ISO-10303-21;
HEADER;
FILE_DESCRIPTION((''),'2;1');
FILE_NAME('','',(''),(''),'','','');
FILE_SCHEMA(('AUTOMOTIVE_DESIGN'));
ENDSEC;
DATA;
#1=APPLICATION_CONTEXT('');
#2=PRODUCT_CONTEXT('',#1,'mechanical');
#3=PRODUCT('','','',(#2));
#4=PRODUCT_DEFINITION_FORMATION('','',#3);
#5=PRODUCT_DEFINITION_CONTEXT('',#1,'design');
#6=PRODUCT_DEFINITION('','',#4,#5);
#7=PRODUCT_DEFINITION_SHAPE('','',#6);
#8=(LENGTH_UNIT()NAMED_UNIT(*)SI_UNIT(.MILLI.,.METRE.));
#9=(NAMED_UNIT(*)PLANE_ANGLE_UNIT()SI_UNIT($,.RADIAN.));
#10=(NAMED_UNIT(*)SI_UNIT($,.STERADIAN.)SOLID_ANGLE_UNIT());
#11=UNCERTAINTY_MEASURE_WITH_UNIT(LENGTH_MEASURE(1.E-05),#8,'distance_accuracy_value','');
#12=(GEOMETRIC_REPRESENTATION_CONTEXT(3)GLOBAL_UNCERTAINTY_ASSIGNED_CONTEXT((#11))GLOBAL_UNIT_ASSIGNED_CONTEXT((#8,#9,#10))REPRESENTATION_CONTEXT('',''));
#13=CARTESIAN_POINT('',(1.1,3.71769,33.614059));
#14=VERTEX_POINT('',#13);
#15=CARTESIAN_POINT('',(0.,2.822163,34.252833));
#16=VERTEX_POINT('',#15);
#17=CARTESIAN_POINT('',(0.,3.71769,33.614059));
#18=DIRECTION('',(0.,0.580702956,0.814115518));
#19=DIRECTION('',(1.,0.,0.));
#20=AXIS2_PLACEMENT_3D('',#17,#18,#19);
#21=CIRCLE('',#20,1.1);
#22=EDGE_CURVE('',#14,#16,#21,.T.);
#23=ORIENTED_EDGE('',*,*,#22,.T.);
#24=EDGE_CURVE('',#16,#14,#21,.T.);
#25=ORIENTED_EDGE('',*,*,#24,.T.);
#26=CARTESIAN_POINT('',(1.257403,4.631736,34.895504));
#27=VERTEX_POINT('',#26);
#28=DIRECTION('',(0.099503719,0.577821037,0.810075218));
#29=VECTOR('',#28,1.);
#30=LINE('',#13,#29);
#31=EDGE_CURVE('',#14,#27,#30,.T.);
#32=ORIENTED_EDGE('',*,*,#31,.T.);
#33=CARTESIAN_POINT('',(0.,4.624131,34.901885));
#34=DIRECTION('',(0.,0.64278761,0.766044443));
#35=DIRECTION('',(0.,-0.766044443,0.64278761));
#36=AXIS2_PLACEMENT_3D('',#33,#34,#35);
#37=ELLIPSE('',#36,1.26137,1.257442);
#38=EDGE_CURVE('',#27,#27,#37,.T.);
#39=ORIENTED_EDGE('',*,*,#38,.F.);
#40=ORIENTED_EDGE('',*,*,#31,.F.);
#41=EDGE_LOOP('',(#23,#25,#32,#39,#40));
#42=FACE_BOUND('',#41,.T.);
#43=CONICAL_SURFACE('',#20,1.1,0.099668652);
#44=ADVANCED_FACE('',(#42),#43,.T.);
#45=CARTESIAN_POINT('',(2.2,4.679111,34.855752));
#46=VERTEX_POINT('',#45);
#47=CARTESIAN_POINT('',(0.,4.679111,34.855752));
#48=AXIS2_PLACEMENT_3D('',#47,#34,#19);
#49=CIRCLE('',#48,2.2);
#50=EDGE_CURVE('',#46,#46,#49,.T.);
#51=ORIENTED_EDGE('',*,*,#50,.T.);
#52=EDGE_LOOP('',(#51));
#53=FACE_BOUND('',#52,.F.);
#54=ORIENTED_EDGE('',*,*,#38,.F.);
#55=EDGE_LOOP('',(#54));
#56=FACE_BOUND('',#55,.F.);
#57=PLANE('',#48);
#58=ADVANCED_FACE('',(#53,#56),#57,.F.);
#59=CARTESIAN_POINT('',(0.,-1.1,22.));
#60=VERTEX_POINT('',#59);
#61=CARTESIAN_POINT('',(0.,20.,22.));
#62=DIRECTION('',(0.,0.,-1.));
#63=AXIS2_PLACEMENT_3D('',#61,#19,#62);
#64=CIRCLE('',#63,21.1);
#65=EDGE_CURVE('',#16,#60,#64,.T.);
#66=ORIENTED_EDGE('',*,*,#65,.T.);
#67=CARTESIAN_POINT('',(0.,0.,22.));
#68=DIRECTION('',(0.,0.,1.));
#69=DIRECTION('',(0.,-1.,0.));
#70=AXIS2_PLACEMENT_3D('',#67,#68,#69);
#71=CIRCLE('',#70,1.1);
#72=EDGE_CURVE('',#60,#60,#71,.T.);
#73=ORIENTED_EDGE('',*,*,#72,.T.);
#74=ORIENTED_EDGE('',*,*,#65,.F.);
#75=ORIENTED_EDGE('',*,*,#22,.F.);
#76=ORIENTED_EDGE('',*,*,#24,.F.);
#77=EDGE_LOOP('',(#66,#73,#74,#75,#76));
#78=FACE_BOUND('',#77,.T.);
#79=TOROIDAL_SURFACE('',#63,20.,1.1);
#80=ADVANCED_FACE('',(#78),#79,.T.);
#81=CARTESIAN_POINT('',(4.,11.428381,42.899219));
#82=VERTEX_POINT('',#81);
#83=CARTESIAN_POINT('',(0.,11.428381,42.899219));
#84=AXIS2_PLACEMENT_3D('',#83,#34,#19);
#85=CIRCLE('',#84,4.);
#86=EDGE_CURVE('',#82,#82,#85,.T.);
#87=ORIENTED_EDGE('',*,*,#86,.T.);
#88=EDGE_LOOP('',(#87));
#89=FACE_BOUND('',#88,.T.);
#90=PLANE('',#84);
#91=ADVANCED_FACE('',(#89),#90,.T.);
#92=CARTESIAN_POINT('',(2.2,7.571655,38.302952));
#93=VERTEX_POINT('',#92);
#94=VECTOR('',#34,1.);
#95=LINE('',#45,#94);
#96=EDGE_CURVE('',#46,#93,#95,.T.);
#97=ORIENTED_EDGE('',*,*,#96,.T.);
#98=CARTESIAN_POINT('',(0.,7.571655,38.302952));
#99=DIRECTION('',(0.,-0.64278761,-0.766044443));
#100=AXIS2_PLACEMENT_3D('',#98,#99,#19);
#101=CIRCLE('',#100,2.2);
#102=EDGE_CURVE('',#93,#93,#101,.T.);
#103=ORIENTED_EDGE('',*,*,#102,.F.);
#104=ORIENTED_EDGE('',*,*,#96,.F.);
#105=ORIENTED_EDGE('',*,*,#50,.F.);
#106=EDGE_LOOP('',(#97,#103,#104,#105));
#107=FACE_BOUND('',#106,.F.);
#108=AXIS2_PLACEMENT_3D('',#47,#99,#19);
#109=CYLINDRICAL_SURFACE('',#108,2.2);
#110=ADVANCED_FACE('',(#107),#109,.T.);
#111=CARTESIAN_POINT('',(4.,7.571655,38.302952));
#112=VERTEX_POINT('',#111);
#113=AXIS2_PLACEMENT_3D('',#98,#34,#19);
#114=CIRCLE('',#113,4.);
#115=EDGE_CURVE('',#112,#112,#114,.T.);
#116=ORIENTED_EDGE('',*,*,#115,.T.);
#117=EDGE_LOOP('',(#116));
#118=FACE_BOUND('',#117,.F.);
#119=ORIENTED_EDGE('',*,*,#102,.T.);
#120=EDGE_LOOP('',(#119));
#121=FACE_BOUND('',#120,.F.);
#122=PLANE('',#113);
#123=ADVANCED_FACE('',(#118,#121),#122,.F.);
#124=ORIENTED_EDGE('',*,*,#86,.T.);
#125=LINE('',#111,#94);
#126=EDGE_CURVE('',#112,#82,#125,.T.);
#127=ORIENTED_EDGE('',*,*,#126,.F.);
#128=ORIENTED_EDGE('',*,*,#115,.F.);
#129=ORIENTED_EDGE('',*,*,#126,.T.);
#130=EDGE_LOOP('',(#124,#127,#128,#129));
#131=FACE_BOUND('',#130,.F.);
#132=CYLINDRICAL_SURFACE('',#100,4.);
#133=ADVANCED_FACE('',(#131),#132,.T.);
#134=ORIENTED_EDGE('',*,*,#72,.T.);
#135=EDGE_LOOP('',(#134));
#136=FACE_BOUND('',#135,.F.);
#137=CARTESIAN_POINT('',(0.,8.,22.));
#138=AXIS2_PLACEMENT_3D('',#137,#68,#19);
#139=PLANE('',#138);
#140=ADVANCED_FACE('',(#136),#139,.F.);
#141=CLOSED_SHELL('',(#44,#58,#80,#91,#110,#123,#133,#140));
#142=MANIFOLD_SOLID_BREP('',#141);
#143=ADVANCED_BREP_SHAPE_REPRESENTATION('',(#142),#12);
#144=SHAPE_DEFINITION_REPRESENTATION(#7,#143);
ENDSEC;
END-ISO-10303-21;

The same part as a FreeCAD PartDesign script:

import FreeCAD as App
import Part
import Sketcher
from FreeCAD import Vector

doc = App.newDocument("Part")
body = doc.addObject("PartDesign::Body", "Body")

sketch1 = body.newObject("Sketcher::SketchObject", "Sketch")
sketch1.AttachmentSupport = (doc.getObject("XZ_Plane"), [""])
sketch1.MapMode = "FlatFace"
sketch1.addGeometry(Part.LineSegment(Vector(0, 0, 0), Vector(1.1, 0, 0)), False)
sketch1.addGeometry(Part.LineSegment(Vector(1.1, 0, 0), Vector(1.3, 2, 0)), False)
sketch1.addGeometry(Part.LineSegment(Vector(1.3, 2, 0), Vector(0, 2, 0)), False)
sketch1.addGeometry(Part.LineSegment(Vector(0, 2, 0), Vector(0, 0, 0)), False)
sketch1.addConstraint(Sketcher.Constraint("Coincident", 0, 2, 1, 1))
sketch1.addConstraint(Sketcher.Constraint("Coincident", 1, 2, 2, 1))
sketch1.addConstraint(Sketcher.Constraint("Coincident", 2, 2, 3, 1))
sketch1.addConstraint(Sketcher.Constraint("Coincident", 3, 2, 0, 1))
sketch1.addConstraint(Sketcher.Constraint("Horizontal", 0))
sketch1.addConstraint(Sketcher.Constraint("Horizontal", 2))
sketch1.addConstraint(Sketcher.Constraint("Vertical", 3))
sketch1.addConstraint(Sketcher.Constraint("Coincident", 3, 2, -1, 1))
sketch1.addConstraint(Sketcher.Constraint("DistanceY", 3, 2, 3, 1, 2.0))
sketch1.addConstraint(Sketcher.Constraint("DistanceX", 0, 1, 0, 2, 1.1))
sketch1.addConstraint(Sketcher.Constraint("DistanceX", 2, 2, 2, 1, 1.3))
revolution = body.newObject("PartDesign::Revolution", "Revolution")
revolution.Profile = sketch1
revolution.ReferenceAxis = (sketch1, ["V_Axis"])
revolution.Angle = 360
body2 = doc.addObject("PartDesign::Body", "Body001")
doc.recompute()

body.Placement = App.Placement(Vector(0, 0, 0), App.Rotation(Vector(1, 0, 0), 324.5))
boolean = body2.newObject("PartDesign::Boolean", "Boolean")
boolean.Type = "Fuse"
boolean.addObjects([body])
body3 = doc.addObject("PartDesign::Body", "Body002")
doc.recompute()

body2.Placement = App.Placement(Vector(0, 3.71769, 11.614059), App.Rotation(Vector(0, 0, 1), 0))
boolean2 = body3.newObject("PartDesign::Boolean", "Boolean001")
boolean2.Type = "Fuse"
boolean2.addObjects([body2])
body4 = doc.addObject("PartDesign::Body", "Body003")

sketch2 = body4.newObject("Sketcher::SketchObject", "Sketch001")
sketch2.AttachmentSupport = (doc.getObject("XY_Plane003"), [""])
sketch2.MapMode = "FlatFace"
sketch2.addGeometry(Part.LineSegment(Vector(0, 24, 0), Vector(0, 0, 0)), False)
sketch2.addGeometry(Part.LineSegment(Vector(0, 0, 0), Vector(10, 0, 0)), False)
sketch2.addGeometry(Part.LineSegment(Vector(10, 0, 0), Vector(10, 24, 0)), False)
sketch2.addGeometry(Part.LineSegment(Vector(10, 24, 0), Vector(0, 24, 0)), False)
sketch2.addConstraint(Sketcher.Constraint("Coincident", 0, 2, 1, 1))
sketch2.addConstraint(Sketcher.Constraint("Coincident", 1, 2, 2, 1))
sketch2.addConstraint(Sketcher.Constraint("Coincident", 2, 2, 3, 1))
sketch2.addConstraint(Sketcher.Constraint("Coincident", 3, 2, 0, 1))
sketch2.addConstraint(Sketcher.Constraint("Vertical", 0))
sketch2.addConstraint(Sketcher.Constraint("Horizontal", 1))
sketch2.addConstraint(Sketcher.Constraint("Vertical", 2))
sketch2.addConstraint(Sketcher.Constraint("Horizontal", 3))
sketch2.addConstraint(Sketcher.Constraint("Coincident", 0, 2, -1, 1))
sketch2.addConstraint(Sketcher.Constraint("DistanceX", 1, 1, 1, 2, 10.0))
sketch2.addConstraint(Sketcher.Constraint("DistanceY", 0, 2, 0, 1, 24.0))
pad1 = body4.newObject("PartDesign::Pad", "Pad")
pad1.Profile = sketch2
pad1.Length = 22
body5 = doc.addObject("PartDesign::Body", "Body004")
doc.recompute()

body4.Placement = App.Placement(Vector(0, 0, 0), App.Rotation(Vector(1, 0, 0), 324.5))
boolean3 = body5.newObject("PartDesign::Boolean", "Boolean002")
boolean3.Type = "Fuse"
boolean3.addObjects([body4])
body6 = doc.addObject("PartDesign::Body", "Body005")
doc.recompute()

body5.Placement = App.Placement(Vector(-5, 0.461228, 13.936871), App.Rotation(Vector(0, 0, 1), 0))
boolean4 = body6.newObject("PartDesign::Boolean", "Boolean003")
boolean4.Type = "Fuse"
boolean4.addObjects([body5])
body7 = doc.addObject("PartDesign::Body", "Body006")

sketch3 = body7.newObject("Sketcher::SketchObject", "Sketch002")
sketch3.AttachmentSupport = (doc.getObject("XY_Plane006"), [""])
sketch3.MapMode = "FlatFace"
sketch3.addGeometry(Part.LineSegment(Vector(-5, 20, 0), Vector(-5, -4, 0)), False)
sketch3.addGeometry(Part.LineSegment(Vector(-5, -4, 0), Vector(5, -4, 0)), False)
sketch3.addGeometry(Part.LineSegment(Vector(5, -4, 0), Vector(5, 20, 0)), False)
sketch3.addGeometry(Part.LineSegment(Vector(5, 20, 0), Vector(-5, 20, 0)), False)
sketch3.addConstraint(Sketcher.Constraint("Coincident", 0, 2, 1, 1))
sketch3.addConstraint(Sketcher.Constraint("Coincident", 1, 2, 2, 1))
sketch3.addConstraint(Sketcher.Constraint("Coincident", 2, 2, 3, 1))
sketch3.addConstraint(Sketcher.Constraint("Coincident", 3, 2, 0, 1))
sketch3.addConstraint(Sketcher.Constraint("Vertical", 0))
sketch3.addConstraint(Sketcher.Constraint("Horizontal", 1))
sketch3.addConstraint(Sketcher.Constraint("Vertical", 2))
sketch3.addConstraint(Sketcher.Constraint("Horizontal", 3))
sketch3.addConstraint(Sketcher.Constraint("DistanceX", 1, 1, 1, 2, 10.0))
sketch3.addConstraint(Sketcher.Constraint("DistanceY", 0, 2, 0, 1, 24.0))
sketch3.addConstraint(Sketcher.Constraint("DistanceX", 0, 2, -1, 1, 5.0))
sketch3.addConstraint(Sketcher.Constraint("DistanceY", 0, 2, -1, 1, 4.0))
pad2 = body7.newObject("PartDesign::Pad", "Pad001")
pad2.Profile = sketch3
pad2.Length = 22
body8 = doc.addObject("PartDesign::Body", "Body007")

sketch4 = body8.newObject("Sketcher::SketchObject", "Sketch003")
sketch4.AttachmentSupport = (doc.getObject("XZ_Plane007"), [""])
sketch4.MapMode = "FlatFace"
sketch4.addGeometry(Part.Circle(Vector(20, 0, 0), Vector(0, 0, 1), 1.1), False)
sketch4.addConstraint(Sketcher.Constraint("PointOnObject", 0, 3, -1))
sketch4.addConstraint(Sketcher.Constraint("Diameter", 0, 2.2))
sketch4.addConstraint(Sketcher.Constraint("DistanceX", -1, 1, 0, 3, 20.0))
revolution2 = body8.newObject("PartDesign::Revolution", "Revolution001")
revolution2.Profile = sketch4
revolution2.ReferenceAxis = (sketch4, ["V_Axis"])
revolution2.Angle = 360
body9 = doc.addObject("PartDesign::Body", "Body008")
doc.recompute()

body8.Placement = App.Placement(Vector(0, 0, 0), App.Rotation(Vector(0, 1, 0), 90))
boolean5 = body9.newObject("PartDesign::Boolean", "Boolean004")
boolean5.Type = "Fuse"
boolean5.addObjects([body8])
body10 = doc.addObject("PartDesign::Body", "Body009")
doc.recompute()

body9.Placement = App.Placement(Vector(0, 20, 0), App.Rotation(Vector(0, 0, 1), 0))
boolean6 = body10.newObject("PartDesign::Boolean", "Boolean005")
boolean6.Type = "Fuse"
boolean6.addObjects([body9])
doc.recompute()

boolean7 = body10.newObject("PartDesign::Boolean", "Boolean006")
boolean7.Type = "Common"
boolean7.addObjects([body7])
doc.recompute()

boolean8 = body10.newObject("PartDesign::Boolean", "Boolean007")
boolean8.Type = "Cut"
boolean8.addObjects([body6])
body11 = doc.addObject("PartDesign::Body", "Body010")

sketch5 = body11.newObject("Sketcher::SketchObject", "Sketch004")
sketch5.AttachmentSupport = (doc.getObject("XY_Plane010"), [""])
sketch5.MapMode = "FlatFace"
sketch5.addGeometry(Part.Circle(Vector(0, 0, 0), Vector(0, 0, 1), 4), False)
sketch5.addConstraint(Sketcher.Constraint("Coincident", 0, 3, -1, 1))
sketch5.addConstraint(Sketcher.Constraint("Diameter", 0, 8.0))
pad3 = body11.newObject("PartDesign::Pad", "Pad002")
pad3.Profile = sketch5
pad3.Length = 6
body12 = doc.addObject("PartDesign::Body", "Body011")
doc.recompute()

body11.Placement = App.Placement(Vector(0, 0, 0), App.Rotation(Vector(1, 0, 0), 320))
boolean9 = body12.newObject("PartDesign::Boolean", "Boolean008")
boolean9.Type = "Fuse"
boolean9.addObjects([body11])
body13 = doc.addObject("PartDesign::Body", "Body012")
doc.recompute()

body12.Placement = App.Placement(Vector(0, 7.571655, 16.302952), App.Rotation(Vector(0, 0, 1), 0))
boolean10 = body13.newObject("PartDesign::Boolean", "Boolean009")
boolean10.Type = "Fuse"
boolean10.addObjects([body12])
body14 = doc.addObject("PartDesign::Body", "Body013")

sketch6 = body14.newObject("Sketcher::SketchObject", "Sketch005")
sketch6.AttachmentSupport = (doc.getObject("XY_Plane013"), [""])
sketch6.MapMode = "FlatFace"
sketch6.addGeometry(Part.Circle(Vector(0, 0, 0), Vector(0, 0, 1), 2.2), False)
sketch6.addConstraint(Sketcher.Constraint("Coincident", 0, 3, -1, 1))
sketch6.addConstraint(Sketcher.Constraint("Diameter", 0, 4.4))
pad4 = body14.newObject("PartDesign::Pad", "Pad003")
pad4.Profile = sketch6
pad4.Length = 10
body15 = doc.addObject("PartDesign::Body", "Body014")
doc.recompute()

body14.Placement = App.Placement(Vector(0, 0, 0), App.Rotation(Vector(1, 0, 0), 320))
boolean11 = body15.newObject("PartDesign::Boolean", "Boolean010")
boolean11.Type = "Fuse"
boolean11.addObjects([body14])
body16 = doc.addObject("PartDesign::Body", "Body015")
doc.recompute()

body15.Placement = App.Placement(Vector(0, 4.679111, 12.855752), App.Rotation(Vector(0, 0, 1), 0))
boolean12 = body16.newObject("PartDesign::Boolean", "Boolean011")
boolean12.Type = "Fuse"
boolean12.addObjects([body15])
doc.recompute()

boolean13 = body16.newObject("PartDesign::Boolean", "Boolean012")
boolean13.Type = "Fuse"
boolean13.addObjects([body3])
doc.recompute()

boolean14 = body16.newObject("PartDesign::Boolean", "Boolean013")
boolean14.Type = "Fuse"
boolean14.addObjects([body10])
doc.recompute()

boolean15 = body16.newObject("PartDesign::Boolean", "Boolean014")
boolean15.Type = "Fuse"
boolean15.addObjects([body13])
body17 = doc.addObject("PartDesign::Body", "Body016")
doc.recompute()

body16.Placement = App.Placement(Vector(0, 0, 22), App.Rotation(Vector(0, 0, 1), 0))
boolean16 = body17.newObject("PartDesign::Boolean", "Boolean015")
boolean16.Type = "Fuse"
boolean16.addObjects([body16])

doc.recompute()
